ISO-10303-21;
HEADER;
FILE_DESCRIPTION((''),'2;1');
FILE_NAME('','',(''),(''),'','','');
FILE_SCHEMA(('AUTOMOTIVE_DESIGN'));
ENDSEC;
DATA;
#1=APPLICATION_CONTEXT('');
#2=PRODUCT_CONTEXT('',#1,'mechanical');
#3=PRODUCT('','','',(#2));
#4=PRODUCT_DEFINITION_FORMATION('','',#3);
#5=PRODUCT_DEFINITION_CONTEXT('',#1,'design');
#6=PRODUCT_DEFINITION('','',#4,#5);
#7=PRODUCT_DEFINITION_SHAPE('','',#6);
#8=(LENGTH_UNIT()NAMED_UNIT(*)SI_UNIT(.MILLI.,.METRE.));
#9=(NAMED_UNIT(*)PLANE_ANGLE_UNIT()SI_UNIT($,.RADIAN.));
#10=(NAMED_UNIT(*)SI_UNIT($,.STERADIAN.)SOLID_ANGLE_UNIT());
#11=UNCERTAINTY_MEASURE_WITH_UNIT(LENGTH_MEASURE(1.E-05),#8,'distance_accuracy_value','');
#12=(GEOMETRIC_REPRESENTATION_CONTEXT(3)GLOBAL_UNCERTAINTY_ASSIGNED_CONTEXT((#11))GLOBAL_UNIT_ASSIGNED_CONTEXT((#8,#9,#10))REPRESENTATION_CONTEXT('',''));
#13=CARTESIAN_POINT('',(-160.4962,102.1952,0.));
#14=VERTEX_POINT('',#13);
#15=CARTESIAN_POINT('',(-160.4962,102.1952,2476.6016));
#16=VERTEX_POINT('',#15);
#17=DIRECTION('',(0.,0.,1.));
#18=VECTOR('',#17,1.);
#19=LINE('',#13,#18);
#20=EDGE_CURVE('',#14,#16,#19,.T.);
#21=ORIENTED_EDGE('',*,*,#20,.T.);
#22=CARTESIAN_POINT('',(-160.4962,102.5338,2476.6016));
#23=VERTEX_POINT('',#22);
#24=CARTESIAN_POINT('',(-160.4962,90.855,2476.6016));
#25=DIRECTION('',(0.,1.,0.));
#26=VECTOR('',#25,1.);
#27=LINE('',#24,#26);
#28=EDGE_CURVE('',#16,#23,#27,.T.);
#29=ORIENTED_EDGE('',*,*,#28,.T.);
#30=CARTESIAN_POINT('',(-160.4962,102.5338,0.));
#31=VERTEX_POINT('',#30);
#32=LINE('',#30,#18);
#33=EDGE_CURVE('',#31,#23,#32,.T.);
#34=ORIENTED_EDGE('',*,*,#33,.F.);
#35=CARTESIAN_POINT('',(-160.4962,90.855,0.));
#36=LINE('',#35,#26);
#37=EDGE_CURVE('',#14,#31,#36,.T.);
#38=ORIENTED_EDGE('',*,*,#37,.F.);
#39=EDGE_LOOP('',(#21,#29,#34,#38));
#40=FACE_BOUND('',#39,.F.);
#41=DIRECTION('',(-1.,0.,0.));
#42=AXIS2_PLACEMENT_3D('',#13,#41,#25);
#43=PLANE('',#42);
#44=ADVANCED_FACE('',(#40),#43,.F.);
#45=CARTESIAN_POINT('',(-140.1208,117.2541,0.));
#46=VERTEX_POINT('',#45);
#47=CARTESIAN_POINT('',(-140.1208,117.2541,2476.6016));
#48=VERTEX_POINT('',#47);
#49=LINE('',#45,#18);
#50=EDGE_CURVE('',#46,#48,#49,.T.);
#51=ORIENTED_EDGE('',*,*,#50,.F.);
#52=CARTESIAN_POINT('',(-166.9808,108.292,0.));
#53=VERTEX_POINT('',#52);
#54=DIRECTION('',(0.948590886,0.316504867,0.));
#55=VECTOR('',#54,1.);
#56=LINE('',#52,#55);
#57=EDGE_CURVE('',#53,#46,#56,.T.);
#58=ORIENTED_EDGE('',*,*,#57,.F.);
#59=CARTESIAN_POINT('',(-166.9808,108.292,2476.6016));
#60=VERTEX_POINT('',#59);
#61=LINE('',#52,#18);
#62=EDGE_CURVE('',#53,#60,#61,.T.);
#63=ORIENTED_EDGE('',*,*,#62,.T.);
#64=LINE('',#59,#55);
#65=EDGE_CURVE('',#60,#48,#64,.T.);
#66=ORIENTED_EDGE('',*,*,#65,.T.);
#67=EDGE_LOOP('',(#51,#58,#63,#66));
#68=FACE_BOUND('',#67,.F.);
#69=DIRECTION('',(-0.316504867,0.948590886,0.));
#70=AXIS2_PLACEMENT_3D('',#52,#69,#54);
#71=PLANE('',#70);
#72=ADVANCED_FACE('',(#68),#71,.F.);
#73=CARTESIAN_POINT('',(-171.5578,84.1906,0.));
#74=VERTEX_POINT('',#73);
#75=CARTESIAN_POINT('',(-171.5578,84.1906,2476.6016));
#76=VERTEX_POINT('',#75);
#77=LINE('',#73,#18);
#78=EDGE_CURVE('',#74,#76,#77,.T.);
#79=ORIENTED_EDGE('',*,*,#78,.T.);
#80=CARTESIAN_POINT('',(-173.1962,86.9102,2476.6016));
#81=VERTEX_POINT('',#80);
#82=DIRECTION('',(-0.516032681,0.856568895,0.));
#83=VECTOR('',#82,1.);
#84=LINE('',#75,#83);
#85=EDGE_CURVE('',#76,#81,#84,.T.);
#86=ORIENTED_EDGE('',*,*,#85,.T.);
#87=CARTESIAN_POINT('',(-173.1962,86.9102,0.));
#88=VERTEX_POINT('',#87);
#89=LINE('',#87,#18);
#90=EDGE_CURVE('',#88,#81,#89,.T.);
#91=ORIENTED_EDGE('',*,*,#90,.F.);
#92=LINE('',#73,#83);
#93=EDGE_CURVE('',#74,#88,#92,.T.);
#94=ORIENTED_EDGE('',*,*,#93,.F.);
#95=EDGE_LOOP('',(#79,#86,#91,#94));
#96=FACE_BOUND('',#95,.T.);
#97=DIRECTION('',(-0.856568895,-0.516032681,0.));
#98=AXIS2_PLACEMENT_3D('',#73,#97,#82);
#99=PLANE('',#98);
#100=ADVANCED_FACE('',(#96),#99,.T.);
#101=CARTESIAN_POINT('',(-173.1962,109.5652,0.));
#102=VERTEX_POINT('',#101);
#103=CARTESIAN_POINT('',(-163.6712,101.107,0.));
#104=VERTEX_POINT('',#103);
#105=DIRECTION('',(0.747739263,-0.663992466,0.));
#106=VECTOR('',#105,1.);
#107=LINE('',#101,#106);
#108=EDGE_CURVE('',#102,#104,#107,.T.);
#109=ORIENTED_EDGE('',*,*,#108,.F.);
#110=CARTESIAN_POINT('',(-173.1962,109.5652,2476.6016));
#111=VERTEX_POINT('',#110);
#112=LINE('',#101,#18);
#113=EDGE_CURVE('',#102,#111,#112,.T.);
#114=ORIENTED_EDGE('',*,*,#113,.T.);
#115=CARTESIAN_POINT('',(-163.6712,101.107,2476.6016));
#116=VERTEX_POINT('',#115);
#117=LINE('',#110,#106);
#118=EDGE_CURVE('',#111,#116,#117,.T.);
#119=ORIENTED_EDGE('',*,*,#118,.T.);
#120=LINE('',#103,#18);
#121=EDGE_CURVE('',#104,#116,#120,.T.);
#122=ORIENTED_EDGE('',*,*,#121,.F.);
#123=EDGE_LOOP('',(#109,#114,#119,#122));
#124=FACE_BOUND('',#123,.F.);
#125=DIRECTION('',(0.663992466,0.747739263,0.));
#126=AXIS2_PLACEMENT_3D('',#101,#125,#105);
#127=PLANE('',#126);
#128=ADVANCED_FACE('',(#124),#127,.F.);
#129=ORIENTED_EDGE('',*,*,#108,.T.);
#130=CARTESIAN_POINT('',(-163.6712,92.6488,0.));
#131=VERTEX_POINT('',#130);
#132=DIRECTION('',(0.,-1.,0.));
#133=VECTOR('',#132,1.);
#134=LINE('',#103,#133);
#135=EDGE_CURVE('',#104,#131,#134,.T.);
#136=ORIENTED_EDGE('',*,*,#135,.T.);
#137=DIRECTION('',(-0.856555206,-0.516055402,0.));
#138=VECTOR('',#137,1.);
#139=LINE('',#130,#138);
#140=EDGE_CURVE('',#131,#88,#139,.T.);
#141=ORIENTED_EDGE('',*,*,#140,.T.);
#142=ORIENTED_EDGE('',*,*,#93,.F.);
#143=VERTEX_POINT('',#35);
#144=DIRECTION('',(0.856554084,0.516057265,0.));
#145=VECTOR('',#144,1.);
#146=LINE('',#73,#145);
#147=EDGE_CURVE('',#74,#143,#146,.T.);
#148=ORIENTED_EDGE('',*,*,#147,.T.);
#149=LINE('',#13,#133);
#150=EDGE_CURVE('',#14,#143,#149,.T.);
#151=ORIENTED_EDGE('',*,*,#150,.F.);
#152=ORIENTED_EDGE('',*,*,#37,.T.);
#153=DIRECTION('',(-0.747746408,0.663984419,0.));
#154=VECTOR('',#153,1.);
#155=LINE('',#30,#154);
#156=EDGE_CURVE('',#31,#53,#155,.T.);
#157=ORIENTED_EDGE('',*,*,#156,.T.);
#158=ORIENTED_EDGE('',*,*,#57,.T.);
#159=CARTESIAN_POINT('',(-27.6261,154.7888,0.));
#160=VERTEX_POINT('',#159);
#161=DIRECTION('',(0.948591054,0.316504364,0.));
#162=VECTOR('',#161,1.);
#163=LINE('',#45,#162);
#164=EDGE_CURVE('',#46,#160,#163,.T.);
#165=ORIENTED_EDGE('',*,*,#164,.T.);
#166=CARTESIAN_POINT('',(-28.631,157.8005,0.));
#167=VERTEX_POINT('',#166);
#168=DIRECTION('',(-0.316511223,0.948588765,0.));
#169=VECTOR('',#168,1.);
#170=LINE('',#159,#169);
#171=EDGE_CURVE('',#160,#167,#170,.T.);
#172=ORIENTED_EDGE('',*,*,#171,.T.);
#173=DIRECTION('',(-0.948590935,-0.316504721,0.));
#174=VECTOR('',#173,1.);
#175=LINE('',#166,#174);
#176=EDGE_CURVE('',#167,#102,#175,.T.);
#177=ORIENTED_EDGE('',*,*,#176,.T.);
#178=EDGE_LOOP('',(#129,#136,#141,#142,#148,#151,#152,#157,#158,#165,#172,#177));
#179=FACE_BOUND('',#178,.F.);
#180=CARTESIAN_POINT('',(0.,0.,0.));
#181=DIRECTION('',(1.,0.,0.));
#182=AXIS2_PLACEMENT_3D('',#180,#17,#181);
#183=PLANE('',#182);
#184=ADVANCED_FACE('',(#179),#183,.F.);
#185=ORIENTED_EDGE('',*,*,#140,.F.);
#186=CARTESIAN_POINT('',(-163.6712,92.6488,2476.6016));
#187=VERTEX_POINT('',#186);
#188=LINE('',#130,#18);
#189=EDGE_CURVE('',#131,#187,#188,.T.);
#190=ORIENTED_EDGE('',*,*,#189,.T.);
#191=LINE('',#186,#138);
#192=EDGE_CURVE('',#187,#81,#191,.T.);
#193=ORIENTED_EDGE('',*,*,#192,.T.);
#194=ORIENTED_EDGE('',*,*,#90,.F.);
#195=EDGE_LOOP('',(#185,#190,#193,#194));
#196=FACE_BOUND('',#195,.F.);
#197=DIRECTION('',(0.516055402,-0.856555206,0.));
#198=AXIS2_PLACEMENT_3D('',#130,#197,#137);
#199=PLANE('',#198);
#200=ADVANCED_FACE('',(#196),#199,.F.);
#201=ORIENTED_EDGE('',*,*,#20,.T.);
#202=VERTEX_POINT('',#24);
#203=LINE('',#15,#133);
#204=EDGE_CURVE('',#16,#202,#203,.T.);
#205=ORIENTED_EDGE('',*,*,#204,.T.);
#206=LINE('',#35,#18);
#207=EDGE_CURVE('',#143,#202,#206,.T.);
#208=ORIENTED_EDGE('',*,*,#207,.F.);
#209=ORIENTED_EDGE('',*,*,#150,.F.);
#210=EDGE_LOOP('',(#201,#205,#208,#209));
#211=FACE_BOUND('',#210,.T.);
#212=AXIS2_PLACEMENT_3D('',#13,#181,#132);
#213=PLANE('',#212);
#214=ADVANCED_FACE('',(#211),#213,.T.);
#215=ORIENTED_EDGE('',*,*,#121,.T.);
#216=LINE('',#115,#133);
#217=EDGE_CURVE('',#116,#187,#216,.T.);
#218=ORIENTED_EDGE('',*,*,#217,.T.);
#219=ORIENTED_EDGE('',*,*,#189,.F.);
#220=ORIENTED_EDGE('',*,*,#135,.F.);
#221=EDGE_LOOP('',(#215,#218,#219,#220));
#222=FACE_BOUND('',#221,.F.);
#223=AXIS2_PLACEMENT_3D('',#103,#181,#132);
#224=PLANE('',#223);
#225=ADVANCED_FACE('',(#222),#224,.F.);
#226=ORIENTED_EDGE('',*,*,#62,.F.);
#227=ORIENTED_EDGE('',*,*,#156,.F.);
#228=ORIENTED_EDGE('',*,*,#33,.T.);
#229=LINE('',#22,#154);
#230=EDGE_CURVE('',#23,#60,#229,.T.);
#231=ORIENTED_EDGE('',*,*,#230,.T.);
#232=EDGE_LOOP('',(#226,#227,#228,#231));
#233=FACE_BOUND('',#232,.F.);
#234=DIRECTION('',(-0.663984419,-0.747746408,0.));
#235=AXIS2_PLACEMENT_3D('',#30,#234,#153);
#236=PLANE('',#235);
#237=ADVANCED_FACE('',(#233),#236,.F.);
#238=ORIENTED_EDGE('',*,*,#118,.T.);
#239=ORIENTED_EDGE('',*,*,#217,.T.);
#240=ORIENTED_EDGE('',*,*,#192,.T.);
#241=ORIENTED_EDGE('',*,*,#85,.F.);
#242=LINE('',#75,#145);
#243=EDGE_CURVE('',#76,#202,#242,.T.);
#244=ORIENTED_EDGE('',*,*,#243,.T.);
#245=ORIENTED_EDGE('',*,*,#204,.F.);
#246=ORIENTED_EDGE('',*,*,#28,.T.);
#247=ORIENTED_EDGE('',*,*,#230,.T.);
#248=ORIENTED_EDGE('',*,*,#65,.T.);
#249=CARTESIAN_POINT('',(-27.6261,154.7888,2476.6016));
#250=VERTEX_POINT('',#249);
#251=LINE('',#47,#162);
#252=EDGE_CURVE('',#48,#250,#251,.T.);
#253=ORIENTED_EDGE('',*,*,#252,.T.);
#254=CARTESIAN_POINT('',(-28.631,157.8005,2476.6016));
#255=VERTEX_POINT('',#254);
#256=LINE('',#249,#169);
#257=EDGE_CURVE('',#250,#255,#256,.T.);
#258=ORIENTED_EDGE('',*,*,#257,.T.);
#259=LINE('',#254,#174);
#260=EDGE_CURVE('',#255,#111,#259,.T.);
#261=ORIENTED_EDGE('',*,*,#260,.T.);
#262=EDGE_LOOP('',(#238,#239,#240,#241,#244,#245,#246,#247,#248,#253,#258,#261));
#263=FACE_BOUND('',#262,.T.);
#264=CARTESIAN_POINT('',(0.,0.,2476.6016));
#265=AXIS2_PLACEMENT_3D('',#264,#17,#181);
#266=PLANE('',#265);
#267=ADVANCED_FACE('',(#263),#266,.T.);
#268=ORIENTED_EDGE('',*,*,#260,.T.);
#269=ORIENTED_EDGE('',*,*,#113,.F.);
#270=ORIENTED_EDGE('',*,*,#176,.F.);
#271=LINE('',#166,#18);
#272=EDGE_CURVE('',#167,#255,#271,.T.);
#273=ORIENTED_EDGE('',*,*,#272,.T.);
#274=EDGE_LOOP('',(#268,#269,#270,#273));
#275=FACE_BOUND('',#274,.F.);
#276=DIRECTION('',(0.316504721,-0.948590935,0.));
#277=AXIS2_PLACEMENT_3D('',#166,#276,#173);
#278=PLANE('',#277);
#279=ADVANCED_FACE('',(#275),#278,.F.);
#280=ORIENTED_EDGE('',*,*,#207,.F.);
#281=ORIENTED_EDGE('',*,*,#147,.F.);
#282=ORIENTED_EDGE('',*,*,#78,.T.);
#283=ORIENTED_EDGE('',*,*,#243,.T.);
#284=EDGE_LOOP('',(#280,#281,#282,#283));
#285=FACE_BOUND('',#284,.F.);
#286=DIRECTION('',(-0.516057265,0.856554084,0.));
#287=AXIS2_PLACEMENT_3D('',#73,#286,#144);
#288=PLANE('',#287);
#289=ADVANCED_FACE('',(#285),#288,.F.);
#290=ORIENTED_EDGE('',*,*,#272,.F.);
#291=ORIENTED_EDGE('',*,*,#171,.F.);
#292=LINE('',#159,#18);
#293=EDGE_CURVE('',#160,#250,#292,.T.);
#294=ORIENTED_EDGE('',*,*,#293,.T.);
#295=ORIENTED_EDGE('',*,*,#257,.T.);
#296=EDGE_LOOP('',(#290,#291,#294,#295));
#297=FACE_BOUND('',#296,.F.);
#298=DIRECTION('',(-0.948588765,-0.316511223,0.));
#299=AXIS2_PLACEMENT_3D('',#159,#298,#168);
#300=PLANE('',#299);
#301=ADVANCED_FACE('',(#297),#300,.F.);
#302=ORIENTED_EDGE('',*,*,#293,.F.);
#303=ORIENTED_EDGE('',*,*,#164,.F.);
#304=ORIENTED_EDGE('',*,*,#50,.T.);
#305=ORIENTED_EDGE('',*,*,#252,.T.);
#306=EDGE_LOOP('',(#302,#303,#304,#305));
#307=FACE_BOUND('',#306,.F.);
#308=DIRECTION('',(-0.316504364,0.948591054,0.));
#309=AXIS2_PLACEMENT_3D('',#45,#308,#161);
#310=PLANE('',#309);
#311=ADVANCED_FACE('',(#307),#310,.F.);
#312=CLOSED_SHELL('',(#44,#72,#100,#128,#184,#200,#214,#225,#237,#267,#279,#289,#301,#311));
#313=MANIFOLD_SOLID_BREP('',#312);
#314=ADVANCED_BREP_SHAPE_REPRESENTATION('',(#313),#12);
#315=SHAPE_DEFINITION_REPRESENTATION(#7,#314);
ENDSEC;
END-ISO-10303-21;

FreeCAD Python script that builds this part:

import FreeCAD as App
import Part
import Sketcher
from FreeCAD import Vector
Q = App.Units.Quantity


def add_polygon(sketch, points):
    """Adds a closed chain of lines whose ends are joined by coincident constraints."""
    first, n = sketch.GeometryCount, len(points)
    for a, b in zip(points, points[1:] + points[:1]):
        sketch.addGeometry(Part.LineSegment(App.Vector(*a, 0), App.Vector(*b, 0)), False)
    for i in range(n):
        sketch.addConstraint(Sketcher.Constraint("Coincident", first + i, 2, first + (i + 1) % n, 1))

doc = App.newDocument("Part")
body = doc.addObject("PartDesign::Body", "Body")

# Sketch on XY plane
sketch1 = body.newObject("Sketcher::SketchObject", "Sketch")
sketch1.AttachmentSupport = (doc.getObject("XY_Plane"), [""])
sketch1.MapMode = "FlatFace"
add_polygon(sketch1, [(-160.5, 90.9), (-160.5, 102.5), (-167, 108.3), (-140.1, 117.3), (-27.6, 154.8), (-28.6, 157.8), (-173.2, 109.6), (-163.7, 101.1), (-163.7, 92.6), (-173.2, 86.9), (-171.6, 84.2)])  # lines 0-10
sketch1.addConstraint(Sketcher.Constraint("Vertical", 0))
sketch1.addConstraint(Sketcher.Constraint("Vertical", 7))
sketch1.addConstraint(Sketcher.Constraint("Parallel", 2, 3))
sketch1.addConstraint(Sketcher.Constraint("Perpendicular", 3, 4))
sketch1.addConstraint(Sketcher.Constraint("Perpendicular", 4, 5))
sketch1.addConstraint(Sketcher.Constraint("Parallel", 1, 6))
sketch1.addConstraint(Sketcher.Constraint("Perpendicular", 8, 9))
sketch1.addConstraint(Sketcher.Constraint("Perpendicular", 9, 10))
sketch1.addConstraint(Sketcher.Constraint("Vertical", 5, 2, 8, 2))
sketch1.addConstraint(Sketcher.Constraint("Equal", 4, 9))
sketch1.addConstraint(Sketcher.Constraint("Distance", 5, Q("6 in")))
sketch1.addConstraint(Sketcher.Constraint("DistanceY", 7, 2, 7, 1, Q("0.333 in")))
sketch1.addConstraint(Sketcher.Constraint("Distance", 4, Q("0.125 in")))
sketch1.addConstraint(Sketcher.Constraint("DistanceX", 6, 2, 0, 2, Q("0.125 in")))
sketch1.addConstraint(Sketcher.Constraint("DistanceY", 6, 2, 5, 2, Q("0.333 in")))
sketch1.addConstraint(Sketcher.Constraint("DistanceY", 9, 2, 7, 2, Q("0.333 in")))
sketch1.addConstraint(Sketcher.Constraint("DistanceX", 5, 2, 0, 2, Q("0.5 in")))
sketch1.addConstraint(Sketcher.Constraint("DistanceY", 0, 1, 0, 2, Q("0.4598 in")))
sketch1.addConstraint(Sketcher.Constraint("Distance", 2, Q("1.1148 in")))
sketch1.addConstraint(Sketcher.Constraint("DistanceY", -1, 1, 2, 2, Q("4.6163 in")))
sketch1.addConstraint(Sketcher.Constraint("DistanceX", 4, 2, -1, 1, Q("1.1272 in")))
sketch1.addConstraint(Sketcher.Constraint("DistanceY", -1, 1, 5, 2, Q("4.3136 in")))
pad1 = body.newObject("PartDesign::Pad", "Pad")
pad1.Profile = sketch1
pad1.Length = Q("97.504 in")

doc.recompute()
